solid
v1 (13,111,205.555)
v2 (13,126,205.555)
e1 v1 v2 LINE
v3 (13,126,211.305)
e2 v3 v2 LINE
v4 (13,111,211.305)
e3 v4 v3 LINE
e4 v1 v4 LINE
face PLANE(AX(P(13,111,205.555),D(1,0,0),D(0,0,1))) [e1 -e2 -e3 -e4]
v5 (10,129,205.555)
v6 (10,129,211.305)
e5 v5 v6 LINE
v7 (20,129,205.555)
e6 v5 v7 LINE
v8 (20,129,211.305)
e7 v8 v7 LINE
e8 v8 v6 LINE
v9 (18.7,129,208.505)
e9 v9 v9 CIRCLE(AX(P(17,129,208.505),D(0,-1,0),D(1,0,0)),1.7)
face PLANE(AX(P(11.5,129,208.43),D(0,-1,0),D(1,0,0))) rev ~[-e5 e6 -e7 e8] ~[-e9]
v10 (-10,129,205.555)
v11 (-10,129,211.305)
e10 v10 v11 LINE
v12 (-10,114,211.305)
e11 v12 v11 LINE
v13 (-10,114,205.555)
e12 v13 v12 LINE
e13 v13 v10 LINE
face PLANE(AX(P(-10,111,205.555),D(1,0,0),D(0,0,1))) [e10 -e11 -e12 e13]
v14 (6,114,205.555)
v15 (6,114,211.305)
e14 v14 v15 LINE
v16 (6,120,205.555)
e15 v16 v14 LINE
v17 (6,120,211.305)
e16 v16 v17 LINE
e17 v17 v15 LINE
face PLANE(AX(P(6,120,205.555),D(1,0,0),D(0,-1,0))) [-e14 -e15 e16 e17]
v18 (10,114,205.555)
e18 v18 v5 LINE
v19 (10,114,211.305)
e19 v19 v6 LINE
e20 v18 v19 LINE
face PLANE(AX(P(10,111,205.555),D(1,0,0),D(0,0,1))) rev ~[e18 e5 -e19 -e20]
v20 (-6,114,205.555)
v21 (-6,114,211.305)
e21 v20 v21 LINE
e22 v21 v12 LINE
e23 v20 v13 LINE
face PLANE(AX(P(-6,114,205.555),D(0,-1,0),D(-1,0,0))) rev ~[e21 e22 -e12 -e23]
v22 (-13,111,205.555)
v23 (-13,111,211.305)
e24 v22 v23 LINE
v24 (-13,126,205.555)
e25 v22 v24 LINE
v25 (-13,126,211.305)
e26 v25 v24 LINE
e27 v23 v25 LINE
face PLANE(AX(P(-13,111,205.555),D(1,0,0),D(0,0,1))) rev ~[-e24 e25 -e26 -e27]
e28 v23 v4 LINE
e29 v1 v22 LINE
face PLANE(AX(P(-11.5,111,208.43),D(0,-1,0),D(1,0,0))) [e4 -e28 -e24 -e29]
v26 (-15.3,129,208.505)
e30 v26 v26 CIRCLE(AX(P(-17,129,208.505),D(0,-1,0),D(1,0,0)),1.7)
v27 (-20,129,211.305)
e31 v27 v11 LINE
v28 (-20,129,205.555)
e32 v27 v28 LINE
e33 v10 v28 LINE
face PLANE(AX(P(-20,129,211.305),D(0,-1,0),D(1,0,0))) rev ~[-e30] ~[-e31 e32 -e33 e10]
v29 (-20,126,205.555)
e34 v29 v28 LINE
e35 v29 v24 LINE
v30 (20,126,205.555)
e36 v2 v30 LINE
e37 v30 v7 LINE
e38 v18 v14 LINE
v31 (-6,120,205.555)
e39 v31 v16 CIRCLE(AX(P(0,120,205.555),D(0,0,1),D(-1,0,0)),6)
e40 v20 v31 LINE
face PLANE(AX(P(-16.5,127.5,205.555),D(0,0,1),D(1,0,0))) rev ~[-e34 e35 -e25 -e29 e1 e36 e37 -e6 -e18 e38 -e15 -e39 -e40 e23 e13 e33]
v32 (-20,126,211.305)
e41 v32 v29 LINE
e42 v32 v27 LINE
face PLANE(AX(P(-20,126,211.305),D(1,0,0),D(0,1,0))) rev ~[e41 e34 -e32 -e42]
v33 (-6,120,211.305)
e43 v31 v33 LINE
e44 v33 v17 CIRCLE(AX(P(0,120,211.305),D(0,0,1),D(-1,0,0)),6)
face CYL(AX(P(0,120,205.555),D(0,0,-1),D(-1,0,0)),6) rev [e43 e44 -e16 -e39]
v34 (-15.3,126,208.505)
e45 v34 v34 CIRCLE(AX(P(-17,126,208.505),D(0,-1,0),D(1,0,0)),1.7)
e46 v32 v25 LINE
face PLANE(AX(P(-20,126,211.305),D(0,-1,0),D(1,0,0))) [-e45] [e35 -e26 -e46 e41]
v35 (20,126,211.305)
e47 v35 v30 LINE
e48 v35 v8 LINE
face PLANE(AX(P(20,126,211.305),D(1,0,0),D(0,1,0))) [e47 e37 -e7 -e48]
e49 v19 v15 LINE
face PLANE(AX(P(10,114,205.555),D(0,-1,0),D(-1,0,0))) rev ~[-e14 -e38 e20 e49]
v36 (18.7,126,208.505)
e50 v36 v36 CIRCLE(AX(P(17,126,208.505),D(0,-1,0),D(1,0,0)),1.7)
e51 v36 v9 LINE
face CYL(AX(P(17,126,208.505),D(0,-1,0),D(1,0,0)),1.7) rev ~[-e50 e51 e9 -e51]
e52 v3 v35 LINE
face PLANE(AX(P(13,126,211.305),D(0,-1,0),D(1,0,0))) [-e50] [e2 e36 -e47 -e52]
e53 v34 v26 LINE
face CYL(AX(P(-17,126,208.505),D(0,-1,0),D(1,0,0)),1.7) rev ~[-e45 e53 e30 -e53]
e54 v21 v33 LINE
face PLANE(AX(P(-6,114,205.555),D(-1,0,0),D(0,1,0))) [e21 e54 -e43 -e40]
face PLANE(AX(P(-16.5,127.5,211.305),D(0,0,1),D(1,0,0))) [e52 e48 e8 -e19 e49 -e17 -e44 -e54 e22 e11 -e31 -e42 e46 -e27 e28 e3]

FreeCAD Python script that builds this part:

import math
import FreeCAD as App
import Part
import Sketcher

doc = App.newDocument("Part")
params = doc.addObject("Spreadsheet::Sheet", "Params")
for row, (alias, value) in enumerate([
    ("sketch1_radius", "6 mm"),
    ("sketch1_width", "20 mm"),
    ("sketch1_height", "3 mm"),
    ("sketch1_height2", "6 mm"),
    ("pad1_length", "5.75 mm"),
    ("sketch2_width", "3 mm"),
    ("sketch2_height", "5.75 mm"),
    ("pad2_length", "18 mm"),
    ("sketch3_width", "7 mm"),
    ("sketch3_height", "3 mm"),
    ("pad3_length", "5.75 mm"),
    ("sketch4_diameter", "3.4 mm"),
    ("pocket1_length", "25 mm"),
], start=1):
    params.set(f"A{row}", alias)
    params.set(f"B{row}", "=" + value)
    params.setAlias(f"B{row}", alias)

body = doc.addObject("PartDesign::Body", "Body")

# Sketch on XY plane
sketch1 = body.newObject("Sketcher::SketchObject", "Sketch")
sketch1.AttachmentSupport = (doc.getObject("XY_Plane"), [""])
sketch1.MapMode = "FlatFace"
sketch1.addGeometry([
    Part.LineSegment(App.Vector(-10, 0, 0), App.Vector(-10, -3, 0)),  # 0
    Part.LineSegment(App.Vector(-10, -3, 0), App.Vector(10, -3, 0)),  # 1
    Part.LineSegment(App.Vector(10, -3, 0), App.Vector(10, 0, 0)),  # 2
    Part.LineSegment(App.Vector(10, 0, 0), App.Vector(6, 0, 0)),  # 3
    Part.LineSegment(App.Vector(6, 0, 0), App.Vector(6, 6, 0)),  # 4
    Part.ArcOfCircle(Part.Circle(App.Vector(0, 6, 0), App.Vector(0, 0, 1), 6), math.radians(180), math.radians(360)),  # 5
    Part.LineSegment(App.Vector(-6, 6, 0), App.Vector(-6, 0, 0)),  # 6
    Part.LineSegment(App.Vector(-6, 0, 0), App.Vector(-10, 0, 0)),  # 7
], False)
sketch1.addConstraint([
    Sketcher.Constraint("Coincident", 0, 2, 1, 1),
    Sketcher.Constraint("Coincident", 1, 2, 2, 1),
    Sketcher.Constraint("Coincident", 2, 2, 3, 1),
    Sketcher.Constraint("Coincident", 3, 2, 4, 1),
    Sketcher.Constraint("Tangent", 4, 2, 5, 2),
    Sketcher.Constraint("Tangent", 5, 1, 6, 1),
    Sketcher.Constraint("Coincident", 6, 2, 7, 1),
    Sketcher.Constraint("Coincident", 7, 2, 0, 1),
    Sketcher.Constraint("Vertical", 0),
    Sketcher.Constraint("Horizontal", 1),
    Sketcher.Constraint("Vertical", 2),
    Sketcher.Constraint("Horizontal", 3),
    Sketcher.Constraint("Vertical", 4),
    Sketcher.Constraint("Vertical", 6),
    Sketcher.Constraint("Horizontal", 7),
    Sketcher.Constraint("Symmetric", 3, 2, 6, 2, -1, 1),
    Sketcher.Constraint("Symmetric", 2, 2, 7, 2, -2),
    Sketcher.Constraint("Radius", 5, 6.0),
    Sketcher.Constraint("DistanceX", 1, 1, 1, 2, 20.0),
    Sketcher.Constraint("DistanceY", 0, 2, 0, 1, 3.0),
    Sketcher.Constraint("DistanceY", 4, 1, 4, 2, 6.0),
])
sketch1.setExpression("Constraints[17]", "Params.sketch1_radius")
sketch1.setExpression("Constraints[18]", "Params.sketch1_width")
sketch1.setExpression("Constraints[19]", "Params.sketch1_height")
sketch1.setExpression("Constraints[20]", "Params.sketch1_height2")
pad1 = body.newObject("PartDesign::Pad", "Pad")
pad1.Profile = sketch1
pad1.setExpression("Length", "Params.pad1_length")

# Sketch on XZ plane
sketch2 = body.newObject("Sketcher::SketchObject", "Sketch001")
sketch2.AttachmentSupport = (doc.getObject("XZ_Plane"), [""])
sketch2.MapMode = "FlatFace"
sketch2.AttachmentOffset = App.Placement(App.Vector(0, 0, 3), App.Rotation())
sketch2.addGeometry([
    Part.LineSegment(App.Vector(-13, 5.8, 0), App.Vector(-13, 0, 0)),  # 0
    Part.LineSegment(App.Vector(-13, 0, 0), App.Vector(-10, 0, 0)),  # 1
    Part.LineSegment(App.Vector(-10, 0, 0), App.Vector(-10, 5.8, 0)),  # 2
    Part.LineSegment(App.Vector(-10, 5.8, 0), App.Vector(-13, 5.8, 0)),  # 3
    Part.LineSegment(App.Vector(10, 5.8, 0), App.Vector(10, 0, 0)),  # 4
    Part.LineSegment(App.Vector(10, 0, 0), App.Vector(13, 0, 0)),  # 5
    Part.LineSegment(App.Vector(13, 0, 0), App.Vector(13, 5.8, 0)),  # 6
    Part.LineSegment(App.Vector(13, 5.8, 0), App.Vector(10, 5.8, 0)),  # 7
], False)
sketch2.addConstraint([
    Sketcher.Constraint("Coincident", 0, 2, 1, 1),
    Sketcher.Constraint("Coincident", 1, 2, 2, 1),
    Sketcher.Constraint("Coincident", 2, 2, 3, 1),
    Sketcher.Constraint("Coincident", 3, 2, 0, 1),
    Sketcher.Constraint("Coincident", 4, 2, 5, 1),
    Sketcher.Constraint("Coincident", 5, 2, 6, 1),
    Sketcher.Constraint("Coincident", 6, 2, 7, 1),
    Sketcher.Constraint("Coincident", 7, 2, 4, 1),
    Sketcher.Constraint("Vertical", 0),
    Sketcher.Constraint("Horizontal", 1),
    Sketcher.Constraint("Vertical", 2),
    Sketcher.Constraint("Horizontal", 3),
    Sketcher.Constraint("Vertical", 4),
    Sketcher.Constraint("Horizontal", 5),
    Sketcher.Constraint("Vertical", 6),
    Sketcher.Constraint("Horizontal", 7),
    Sketcher.Constraint("Symmetric", 1, 2, 4, 2, -1, 1),
    Sketcher.Constraint("Symmetric", 0, 2, 5, 2, -2),
    Sketcher.Constraint("Horizontal", 3, 2, 6, 2),
    Sketcher.Constraint("DistanceX", 1, 1, 1, 2, 3.0),
    Sketcher.Constraint("DistanceX", 0, 2, -1, 1, 13.0),
    Sketcher.Constraint("DistanceY", 0, 2, 0, 1, 5.75),
])
sketch2.setExpression("Constraints[19]", "Params.sketch2_width")
sketch2.setExpression("Constraints[21]", "Params.sketch2_height")
pad2 = body.newObject("PartDesign::Pad", "Pad001")
pad2.Profile = sketch2
pad2.setExpression("Length", "Params.pad2_length")
pad2.Reversed = True

# Sketch on XY plane
sketch3 = body.newObject("Sketcher::SketchObject", "Sketch002")
sketch3.AttachmentSupport = (doc.getObject("XY_Plane"), [""])
sketch3.MapMode = "FlatFace"
sketch3.AttachmentOffset = App.Placement(App.Vector(0, 0, 5.75), App.Rotation())
sketch3.addGeometry([
    Part.LineSegment(App.Vector(-20, 15, 0), App.Vector(-20, 12, 0)),  # 0
    Part.LineSegment(App.Vector(-20, 12, 0), App.Vector(-13, 12, 0)),  # 1
    Part.LineSegment(App.Vector(-13, 12, 0), App.Vector(-13, 15, 0)),  # 2
    Part.LineSegment(App.Vector(-13, 15, 0), App.Vector(-20, 15, 0)),  # 3
    Part.LineSegment(App.Vector(13, 15, 0), App.Vector(13, 12, 0)),  # 4
    Part.LineSegment(App.Vector(13, 12, 0), App.Vector(20, 12, 0)),  # 5
    Part.LineSegment(App.Vector(20, 12, 0), App.Vector(20, 15, 0)),  # 6
    Part.LineSegment(App.Vector(20, 15, 0), App.Vector(13, 15, 0)),  # 7
], False)
sketch3.addConstraint([
    Sketcher.Constraint("Coincident", 0, 2, 1, 1),
    Sketcher.Constraint("Coincident", 1, 2, 2, 1),
    Sketcher.Constraint("Coincident", 2, 2, 3, 1),
    Sketcher.Constraint("Coincident", 3, 2, 0, 1),
    Sketcher.Constraint("Coincident", 4, 2, 5, 1),
    Sketcher.Constraint("Coincident", 5, 2, 6, 1),
    Sketcher.Constraint("Coincident", 6, 2, 7, 1),
    Sketcher.Constraint("Coincident", 7, 2, 4, 1),
    Sketcher.Constraint("Vertical", 0),
    Sketcher.Constraint("Horizontal", 1),
    Sketcher.Constraint("Vertical", 2),
    Sketcher.Constraint("Horizontal", 3),
    Sketcher.Constraint("Vertical", 4),
    Sketcher.Constraint("Horizontal", 5),
    Sketcher.Constraint("Vertical", 6),
    Sketcher.Constraint("Horizontal", 7),
    Sketcher.Constraint("Symmetric", 1, 2, 4, 2, -2),
    Sketcher.Constraint("Symmetric", 3, 2, 6, 2, -2),
    Sketcher.Constraint("DistanceX", 1, 1, 1, 2, 7.0),
    Sketcher.Constraint("DistanceY", 0, 2, 0, 1, 3.0),
    Sketcher.Constraint("DistanceX", 0, 2, -1, 1, 20.0),
    Sketcher.Constraint("DistanceY", -1, 1, 0, 2, 12.0),
])
sketch3.setExpression("Constraints[18]", "Params.sketch3_width")
sketch3.setExpression("Constraints[19]", "Params.sketch3_height")
pad3 = body.newObject("PartDesign::Pad", "Pad002")
pad3.Profile = sketch3
pad3.setExpression("Length", "Params.pad3_length")
pad3.Reversed = True

# Sketch on XZ plane
sketch4 = body.newObject("Sketcher::SketchObject", "Sketch003")
sketch4.AttachmentSupport = (doc.getObject("XZ_Plane"), [""])
sketch4.MapMode = "FlatFace"
sketch4.AttachmentOffset = App.Placement(App.Vector(0, 0, -12), App.Rotation())
sketch4.addGeometry([
    Part.Circle(App.Vector(-17, 3, 0), App.Vector(0, 0, 1), 1.7),
    Part.Circle(App.Vector(17, 3, 0), App.Vector(0, 0, 1), 1.7),
], False)
sketch4.addConstraint([
    Sketcher.Constraint("Equal", 0, 1),
    Sketcher.Constraint("Symmetric", 0, 3, 1, 3, -2),
    Sketcher.Constraint("Diameter", 0, 3.4),
    Sketcher.Constraint("DistanceX", 0, 3, -1, 1, 17.0),
    Sketcher.Constraint("DistanceY", -1, 1, 0, 3, 2.95),
])
sketch4.setExpression("Constraints[2]", "Params.sketch4_diameter")
pocket1 = body.newObject("PartDesign::Pocket", "Pocket")
pocket1.Profile = sketch4
pocket1.setExpression("Length", "Params.pocket1_length")
body2 = doc.addObject("PartDesign::Body", "Body001")
doc.recompute()

body.Placement = App.Placement(App.Vector(0, 114, 205.555), App.Rotation(App.Vector(0, 0, 1), 0))
boolean = body2.newObject("PartDesign::Boolean", "Boolean")
boolean.Type = "Fuse"
boolean.addObjects([body])

doc.recompute()
